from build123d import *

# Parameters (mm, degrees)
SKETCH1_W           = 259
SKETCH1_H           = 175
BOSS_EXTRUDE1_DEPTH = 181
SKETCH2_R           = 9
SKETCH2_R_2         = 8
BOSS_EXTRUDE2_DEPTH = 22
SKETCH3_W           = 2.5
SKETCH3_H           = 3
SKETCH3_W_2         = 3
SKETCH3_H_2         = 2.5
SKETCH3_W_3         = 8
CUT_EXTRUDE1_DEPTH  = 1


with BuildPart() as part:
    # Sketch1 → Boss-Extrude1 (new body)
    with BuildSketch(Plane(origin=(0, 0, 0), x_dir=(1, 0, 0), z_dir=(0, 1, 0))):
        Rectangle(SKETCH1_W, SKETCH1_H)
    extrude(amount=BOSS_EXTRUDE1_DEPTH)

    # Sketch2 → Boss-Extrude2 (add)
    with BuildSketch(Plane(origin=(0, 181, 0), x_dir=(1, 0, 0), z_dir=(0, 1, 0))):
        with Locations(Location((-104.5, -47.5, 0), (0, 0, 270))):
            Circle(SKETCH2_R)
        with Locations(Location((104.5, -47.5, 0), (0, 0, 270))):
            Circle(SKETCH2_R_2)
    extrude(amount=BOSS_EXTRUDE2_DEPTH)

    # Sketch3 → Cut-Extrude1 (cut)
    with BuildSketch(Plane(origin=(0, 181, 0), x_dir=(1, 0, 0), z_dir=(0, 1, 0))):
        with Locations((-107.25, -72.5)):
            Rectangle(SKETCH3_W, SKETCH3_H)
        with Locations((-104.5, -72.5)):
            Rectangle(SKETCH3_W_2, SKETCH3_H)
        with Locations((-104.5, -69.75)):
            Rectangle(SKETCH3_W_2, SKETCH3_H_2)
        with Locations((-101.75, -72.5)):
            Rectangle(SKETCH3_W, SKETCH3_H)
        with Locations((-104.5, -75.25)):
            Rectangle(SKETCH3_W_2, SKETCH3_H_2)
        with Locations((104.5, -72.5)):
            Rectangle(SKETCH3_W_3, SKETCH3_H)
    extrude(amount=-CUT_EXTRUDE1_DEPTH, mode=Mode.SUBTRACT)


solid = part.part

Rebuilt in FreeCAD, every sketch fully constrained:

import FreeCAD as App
import Part
import Sketcher
from FreeCAD import Vector

doc = App.newDocument("Part")
params = doc.addObject("Spreadsheet::Sheet", "Params")
for row, (alias, value) in enumerate([
    ("sketch1_width", "259 mm"),
    ("sketch1_height", "175 mm"),
    ("pad1_length", "181 mm"),
    ("sketch2_diameter", "18 mm"),
    ("sketch2_diameter2", "16 mm"),
    ("pad2_length", "22 mm"),
    ("sketch3_width", "3 mm"),
    ("sketch3_width2", "8 mm"),
    ("pocket1_length", "1 mm"),
], start=1):
    params.set(f"A{row}", alias)
    params.set(f"B{row}", "=" + value)
    params.setAlias(f"B{row}", alias)

body = doc.addObject("PartDesign::Body", "Body")

sketch1 = body.newObject("Sketcher::SketchObject", "Sketch")
sketch1.AttachmentSupport = (doc.getObject("XZ_Plane"), [""])
sketch1.MapMode = "FlatFace"
sketch1.addGeometry([
    Part.LineSegment(Vector(-129.5, -87.5, 0), Vector(-129.5, 87.5, 0)),
    Part.LineSegment(Vector(-129.5, 87.5, 0), Vector(129.5, 87.5, 0)),
    Part.LineSegment(Vector(129.5, 87.5, 0), Vector(129.5, -87.5, 0)),
    Part.LineSegment(Vector(129.5, -87.5, 0), Vector(-129.5, -87.5, 0)),
], False)
sketch1.addConstraint([
    Sketcher.Constraint("Coincident", 0, 2, 1, 1),
    Sketcher.Constraint("Coincident", 1, 2, 2, 1),
    Sketcher.Constraint("Coincident", 2, 2, 3, 1),
    Sketcher.Constraint("Coincident", 3, 2, 0, 1),
    Sketcher.Constraint("Vertical", 0),
    Sketcher.Constraint("Horizontal", 1),
    Sketcher.Constraint("Vertical", 2),
    Sketcher.Constraint("Horizontal", 3),
    Sketcher.Constraint("Symmetric", 0, 2, 2, 2, -1, 1),
    Sketcher.Constraint("DistanceX", 1, 1, 1, 2, 259.0),
    Sketcher.Constraint("DistanceY", 0, 1, 0, 2, 175.0),
])
sketch1.setExpression("Constraints[9]", "Params.sketch1_width")
sketch1.setExpression("Constraints[10]", "Params.sketch1_height")
pad1 = body.newObject("PartDesign::Pad", "Pad")
pad1.Profile = sketch1
pad1.setExpression("Length", "Params.pad1_length")
pad1.Reversed = True

sketch2 = body.newObject("Sketcher::SketchObject", "Sketch001")
sketch2.AttachmentSupport = (doc.getObject("XZ_Plane"), [""])
sketch2.MapMode = "FlatFace"
sketch2.AttachmentOffset = App.Placement(Vector(0, 0, -181), App.Rotation())
sketch2.addGeometry([
    Part.Circle(Vector(-104.5, 47.5, 0), Vector(0, 0, 1), 9),
    Part.Circle(Vector(104.5, 47.5, 0), Vector(0, 0, 1), 8),
], False)
sketch2.addConstraint([
    Sketcher.Constraint("Symmetric", 0, 3, 1, 3, -2),
    Sketcher.Constraint("Diameter", 0, 18.0),
    Sketcher.Constraint("Diameter", 1, 16.0),
    Sketcher.Constraint("DistanceX", 0, 3, 1, 3, 209.0),
    Sketcher.Constraint("DistanceY", -1, 1, 0, 3, 47.5),
])
sketch2.setExpression("Constraints[1]", "Params.sketch2_diameter")
sketch2.setExpression("Constraints[2]", "Params.sketch2_diameter2")
pad2 = body.newObject("PartDesign::Pad", "Pad001")
pad2.Profile = sketch2
pad2.setExpression("Length", "Params.pad2_length")
pad2.Reversed = True

sketch3 = body.newObject("Sketcher::SketchObject", "Sketch002")
sketch3.AttachmentSupport = (doc.getObject("XZ_Plane"), [""])
sketch3.MapMode = "FlatFace"
sketch3.AttachmentOffset = App.Placement(Vector(0, 0, -181), App.Rotation())
sketch3.addGeometry([
    Part.LineSegment(Vector(-108.5, 71, 0), Vector(-108.5, 74, 0)),
    Part.LineSegment(Vector(-108.5, 74, 0), Vector(-106, 74, 0)),
    Part.LineSegment(Vector(-106, 74, 0), Vector(-106, 76.5, 0)),
    Part.LineSegment(Vector(-106, 76.5, 0), Vector(-103, 76.5, 0)),
    Part.LineSegment(Vector(-103, 76.5, 0), Vector(-103, 74, 0)),
    Part.LineSegment(Vector(-103, 74, 0), Vector(-100.5, 74, 0)),
    Part.LineSegment(Vector(-100.5, 74, 0), Vector(-100.5, 71, 0)),
    Part.LineSegment(Vector(-100.5, 71, 0), Vector(-103, 71, 0)),
    Part.LineSegment(Vector(-103, 71, 0), Vector(-103, 68.5, 0)),
    Part.LineSegment(Vector(-103, 68.5, 0), Vector(-106, 68.5, 0)),
    Part.LineSegment(Vector(-106, 68.5, 0), Vector(-106, 71, 0)),
    Part.LineSegment(Vector(-106, 71, 0), Vector(-108.5, 71, 0)),
    Part.LineSegment(Vector(100.5, 71, 0), Vector(100.5, 74, 0)),
    Part.LineSegment(Vector(100.5, 74, 0), Vector(108.5, 74, 0)),
    Part.LineSegment(Vector(108.5, 74, 0), Vector(108.5, 71, 0)),
    Part.LineSegment(Vector(108.5, 71, 0), Vector(100.5, 71, 0)),
], False)
sketch3.addConstraint([
    Sketcher.Constraint("Coincident", 0, 2, 1, 1),
    Sketcher.Constraint("Coincident", 1, 2, 2, 1),
    Sketcher.Constraint("Coincident", 2, 2, 3, 1),
    Sketcher.Constraint("Coincident", 3, 2, 4, 1),
    Sketcher.Constraint("Coincident", 4, 2, 5, 1),
    Sketcher.Constraint("Coincident", 5, 2, 6, 1),
    Sketcher.Constraint("Coincident", 6, 2, 7, 1),
    Sketcher.Constraint("Coincident", 7, 2, 8, 1),
    Sketcher.Constraint("Coincident", 8, 2, 9, 1),
    Sketcher.Constraint("Coincident", 9, 2, 10, 1),
    Sketcher.Constraint("Coincident", 10, 2, 11, 1),
    Sketcher.Constraint("Coincident", 11, 2, 0, 1),
    Sketcher.Constraint("Coincident", 12, 2, 13, 1),
    Sketcher.Constraint("Coincident", 13, 2, 14, 1),
    Sketcher.Constraint("Coincident", 14, 2, 15, 1),
    Sketcher.Constraint("Coincident", 15, 2, 12, 1),
    Sketcher.Constraint("Vertical", 0),
    Sketcher.Constraint("Horizontal", 1),
    Sketcher.Constraint("Vertical", 2),
    Sketcher.Constraint("Horizontal", 3),
    Sketcher.Constraint("Vertical", 4),
    Sketcher.Constraint("Horizontal", 5),
    Sketcher.Constraint("Vertical", 6),
    Sketcher.Constraint("Horizontal", 7),
    Sketcher.Constraint("Vertical", 8),
    Sketcher.Constraint("Horizontal", 9),
    Sketcher.Constraint("Vertical", 10),
    Sketcher.Constraint("Horizontal", 11),
    Sketcher.Constraint("Vertical", 12),
    Sketcher.Constraint("Horizontal", 13),
    Sketcher.Constraint("Vertical", 14),
    Sketcher.Constraint("Horizontal", 15),
    Sketcher.Constraint("Symmetric", 5, 2, 12, 2, -2),
    Sketcher.Constraint("Symmetric", 0, 2, 13, 2, -2),
    Sketcher.Constraint("Horizontal", 7, 2, 10, 2),
    Sketcher.Constraint("Horizontal", 11, 2, 14, 2),
    Sketcher.Constraint("Vertical", 4, 2, 7, 2),
    Sketcher.Constraint("Vertical", 2, 2, 9, 2),
    Sketcher.Constraint("Equal", 1, 5),
    Sketcher.Constraint("Equal", 9, 0),
    Sketcher.Constraint("Equal", 11, 2),
    Sketcher.Constraint("Equal", 4, 8),
    Sketcher.Constraint("DistanceX", 3, 1, 3, 2, 3.0),
    Sketcher.Constraint("DistanceX", 13, 1, 13, 2, 8.0),
    Sketcher.Constraint("DistanceY", -1, 1, 0, 2, 74.0),
    Sketcher.Constraint("DistanceX", 1, 2, -1, 1, 106.0),
])
sketch3.setExpression("Constraints[42]", "Params.sketch3_width")
sketch3.setExpression("Constraints[43]", "Params.sketch3_width2")
pocket1 = body.newObject("PartDesign::Pocket", "Pocket")
pocket1.Profile = sketch3
pocket1.setExpression("Length", "Params.pocket1_length")
pocket1.Reversed = True

doc.recompute()
